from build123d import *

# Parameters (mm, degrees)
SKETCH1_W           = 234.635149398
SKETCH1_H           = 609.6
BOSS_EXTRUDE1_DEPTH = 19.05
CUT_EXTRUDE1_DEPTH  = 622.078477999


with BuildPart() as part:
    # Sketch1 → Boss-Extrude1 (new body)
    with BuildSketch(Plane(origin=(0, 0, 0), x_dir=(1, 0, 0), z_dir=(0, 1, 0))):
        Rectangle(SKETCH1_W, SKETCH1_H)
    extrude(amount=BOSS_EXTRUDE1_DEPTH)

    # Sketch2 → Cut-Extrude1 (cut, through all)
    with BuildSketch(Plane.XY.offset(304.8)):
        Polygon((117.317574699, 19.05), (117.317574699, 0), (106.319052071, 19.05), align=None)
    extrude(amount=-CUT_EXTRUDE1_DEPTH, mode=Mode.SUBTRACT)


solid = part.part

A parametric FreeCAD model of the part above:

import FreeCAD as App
import Part
import Sketcher
Q = App.Units.Quantity

doc = App.newDocument("Part")
body = doc.addObject("PartDesign::Body", "Body")

# Sketch on XZ plane
sketch1 = body.newObject("Sketcher::SketchObject", "Sketch")
sketch1.AttachmentSupport = (doc.getObject("XZ_Plane"), [""])
sketch1.MapMode = "FlatFace"
sketch1.addGeometry(Part.LineSegment(App.Vector(-117.317575, -304.8, 0), App.Vector(-117.317575, 304.8, 0)), False)
sketch1.addGeometry(Part.LineSegment(App.Vector(-117.317575, 304.8, 0), App.Vector(117.317575, 304.8, 0)), False)
sketch1.addGeometry(Part.LineSegment(App.Vector(117.317575, 304.8, 0), App.Vector(117.317575, -304.8, 0)), False)
sketch1.addGeometry(Part.LineSegment(App.Vector(117.317575, -304.8, 0), App.Vector(-117.317575, -304.8, 0)), False)
sketch1.addConstraint(Sketcher.Constraint("Coincident", 0, 2, 1, 1))
sketch1.addConstraint(Sketcher.Constraint("Coincident", 1, 2, 2, 1))
sketch1.addConstraint(Sketcher.Constraint("Coincident", 2, 2, 3, 1))
sketch1.addConstraint(Sketcher.Constraint("Coincident", 3, 2, 0, 1))
sketch1.addConstraint(Sketcher.Constraint("Vertical", 0))
sketch1.addConstraint(Sketcher.Constraint("Horizontal", 1))
sketch1.addConstraint(Sketcher.Constraint("Vertical", 2))
sketch1.addConstraint(Sketcher.Constraint("Horizontal", 3))
sketch1.addConstraint(Sketcher.Constraint("Symmetric", 0, 2, 2, 2, -1, 1))
sketch1.addConstraint(Sketcher.Constraint("DistanceY", 0, 1, 0, 2, Q("24 in")))
sketch1.addConstraint(Sketcher.Constraint("DistanceX", 1, 1, 1, 2, Q("234.635149 mm")))
pad1 = body.newObject("PartDesign::Pad", "Pad")
pad1.Profile = sketch1
pad1.Length = Q("0.75 in")
pad1.Reversed = True

# Sketch on XY plane
sketch2 = body.newObject("Sketcher::SketchObject", "Sketch001")
sketch2.AttachmentSupport = (doc.getObject("XY_Plane"), [""])
sketch2.MapMode = "FlatFace"
sketch2.AttachmentOffset = App.Placement(App.Vector(0, 0, 12 * 25.4), App.Rotation())
sketch2.addGeometry(Part.LineSegment(App.Vector(117.317575, 0, 0), App.Vector(117.317575, 19.05, 0)), False)
sketch2.addGeometry(Part.LineSegment(App.Vector(117.317575, 19.05, 0), App.Vector(106.319052, 19.05, 0)), False)
sketch2.addGeometry(Part.LineSegment(App.Vector(106.319052, 19.05, 0), App.Vector(117.317575, 0, 0)), False)
sketch2.addConstraint(Sketcher.Constraint("Coincident", 0, 2, 1, 1))
sketch2.addConstraint(Sketcher.Constraint("Coincident", 1, 2, 2, 1))
sketch2.addConstraint(Sketcher.Constraint("Coincident", 2, 2, 0, 1))
sketch2.addConstraint(Sketcher.Constraint("Vertical", 0))
sketch2.addConstraint(Sketcher.Constraint("Horizontal", 1))
sketch2.addConstraint(Sketcher.Constraint("PointOnObject", 2, 2, -1))
sketch2.addConstraint(Sketcher.Constraint("Angle", 2, Q("-60 deg")))
sketch2.addConstraint(Sketcher.Constraint("DistanceY", 0, 1, 0, 2, Q("0.75 in")))
sketch2.addConstraint(Sketcher.Constraint("DistanceX", -1, 1, 0, 2, Q("117.317575 mm")))
pocket1 = body.newObject("PartDesign::Pocket", "Pocket")
pocket1.Profile = sketch2
pocket1.Type = "ThroughAll"

doc.recompute()
